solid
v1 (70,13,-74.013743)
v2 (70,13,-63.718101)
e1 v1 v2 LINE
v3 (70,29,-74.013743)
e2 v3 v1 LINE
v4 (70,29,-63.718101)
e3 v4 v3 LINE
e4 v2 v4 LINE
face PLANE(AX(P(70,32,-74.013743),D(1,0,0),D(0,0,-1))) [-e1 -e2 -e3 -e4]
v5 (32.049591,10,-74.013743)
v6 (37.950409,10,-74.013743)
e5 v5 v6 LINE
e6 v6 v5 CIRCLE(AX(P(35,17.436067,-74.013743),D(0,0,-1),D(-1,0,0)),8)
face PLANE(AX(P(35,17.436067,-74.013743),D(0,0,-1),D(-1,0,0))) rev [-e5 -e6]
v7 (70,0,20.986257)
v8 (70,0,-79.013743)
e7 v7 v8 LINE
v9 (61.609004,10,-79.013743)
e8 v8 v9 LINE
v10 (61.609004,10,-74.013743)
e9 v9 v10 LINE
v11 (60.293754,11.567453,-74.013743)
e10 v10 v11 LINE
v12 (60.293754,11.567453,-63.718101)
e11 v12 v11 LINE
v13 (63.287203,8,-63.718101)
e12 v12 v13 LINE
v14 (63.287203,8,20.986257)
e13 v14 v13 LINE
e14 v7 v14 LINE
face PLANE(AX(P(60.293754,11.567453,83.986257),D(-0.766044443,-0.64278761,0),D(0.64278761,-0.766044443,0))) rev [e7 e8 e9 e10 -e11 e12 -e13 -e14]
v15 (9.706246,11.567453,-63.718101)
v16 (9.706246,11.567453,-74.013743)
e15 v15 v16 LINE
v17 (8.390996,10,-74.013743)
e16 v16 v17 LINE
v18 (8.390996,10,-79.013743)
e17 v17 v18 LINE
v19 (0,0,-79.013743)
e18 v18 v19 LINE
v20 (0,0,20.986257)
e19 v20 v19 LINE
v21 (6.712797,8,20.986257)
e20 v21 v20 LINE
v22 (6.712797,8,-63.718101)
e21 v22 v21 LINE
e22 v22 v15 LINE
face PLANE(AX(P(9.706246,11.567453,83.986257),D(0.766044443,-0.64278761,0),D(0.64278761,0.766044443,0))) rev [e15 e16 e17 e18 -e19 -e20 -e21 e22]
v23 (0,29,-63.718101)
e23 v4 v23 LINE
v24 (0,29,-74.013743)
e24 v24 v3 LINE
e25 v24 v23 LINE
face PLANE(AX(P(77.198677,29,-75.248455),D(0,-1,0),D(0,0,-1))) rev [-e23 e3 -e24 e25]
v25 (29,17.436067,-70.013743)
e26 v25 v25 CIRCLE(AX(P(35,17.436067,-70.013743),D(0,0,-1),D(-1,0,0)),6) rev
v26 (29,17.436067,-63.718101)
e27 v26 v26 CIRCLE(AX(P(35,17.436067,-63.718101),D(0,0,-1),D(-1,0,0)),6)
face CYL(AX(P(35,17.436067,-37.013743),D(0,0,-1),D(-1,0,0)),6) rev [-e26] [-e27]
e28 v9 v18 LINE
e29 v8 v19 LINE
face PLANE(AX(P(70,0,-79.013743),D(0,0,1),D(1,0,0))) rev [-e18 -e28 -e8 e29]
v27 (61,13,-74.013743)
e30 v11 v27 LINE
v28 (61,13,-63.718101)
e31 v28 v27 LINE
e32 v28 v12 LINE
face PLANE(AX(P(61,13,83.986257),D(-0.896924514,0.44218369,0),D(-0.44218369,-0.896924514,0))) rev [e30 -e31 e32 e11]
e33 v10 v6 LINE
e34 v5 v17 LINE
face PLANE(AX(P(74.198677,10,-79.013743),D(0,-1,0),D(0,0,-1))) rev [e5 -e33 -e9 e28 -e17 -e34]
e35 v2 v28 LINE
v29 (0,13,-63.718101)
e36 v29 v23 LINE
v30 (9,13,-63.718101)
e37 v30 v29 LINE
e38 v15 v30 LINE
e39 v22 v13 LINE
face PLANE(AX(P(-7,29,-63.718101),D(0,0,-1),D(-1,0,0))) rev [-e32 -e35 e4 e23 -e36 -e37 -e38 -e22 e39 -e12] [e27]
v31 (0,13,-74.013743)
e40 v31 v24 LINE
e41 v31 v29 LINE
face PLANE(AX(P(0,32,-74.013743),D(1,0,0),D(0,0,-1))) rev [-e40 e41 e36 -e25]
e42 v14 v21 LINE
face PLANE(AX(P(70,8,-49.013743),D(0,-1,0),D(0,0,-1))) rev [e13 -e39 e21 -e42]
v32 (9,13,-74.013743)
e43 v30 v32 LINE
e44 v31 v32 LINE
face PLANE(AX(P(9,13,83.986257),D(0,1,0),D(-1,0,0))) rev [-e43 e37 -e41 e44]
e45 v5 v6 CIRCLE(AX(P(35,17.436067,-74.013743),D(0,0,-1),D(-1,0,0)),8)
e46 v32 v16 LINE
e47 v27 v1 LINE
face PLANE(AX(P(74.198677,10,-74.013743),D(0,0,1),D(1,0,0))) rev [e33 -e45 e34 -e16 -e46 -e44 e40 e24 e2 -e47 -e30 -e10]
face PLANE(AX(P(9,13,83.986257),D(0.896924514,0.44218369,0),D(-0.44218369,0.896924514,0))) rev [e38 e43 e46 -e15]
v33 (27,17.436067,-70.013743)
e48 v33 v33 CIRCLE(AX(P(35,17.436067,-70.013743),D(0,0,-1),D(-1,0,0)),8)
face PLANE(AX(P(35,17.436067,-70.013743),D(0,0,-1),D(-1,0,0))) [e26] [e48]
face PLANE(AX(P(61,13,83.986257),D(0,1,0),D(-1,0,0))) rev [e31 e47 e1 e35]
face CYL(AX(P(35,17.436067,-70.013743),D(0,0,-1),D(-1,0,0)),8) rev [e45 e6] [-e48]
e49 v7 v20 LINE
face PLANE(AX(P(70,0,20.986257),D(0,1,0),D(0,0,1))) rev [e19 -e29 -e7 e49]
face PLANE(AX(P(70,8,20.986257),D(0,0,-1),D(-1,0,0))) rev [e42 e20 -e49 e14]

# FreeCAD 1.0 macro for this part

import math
import FreeCAD as App
import Part
import Sketcher
Q = App.Units.Quantity


def add_polygon(sketch, points):
    """Adds a closed chain of lines whose ends are joined by coincident constraints."""
    first, n = sketch.GeometryCount, len(points)
    for a, b in zip(points, points[1:] + points[:1]):
        sketch.addGeometry(Part.LineSegment(App.Vector(*a, 0), App.Vector(*b, 0)), False)
    for i in range(n):
        sketch.addConstraint(Sketcher.Constraint("Coincident", first + i, 2, first + (i + 1) % n, 1))

doc = App.newDocument("Part")
body = doc.addObject("PartDesign::Body", "Body")

sketch1 = body.newObject("Sketcher::SketchObject", "Sketch")
sketch1.AttachmentSupport = (doc.getObject("YZ_Plane"), [""])
sketch1.MapMode = "FlatFace"
sketch1.addGeometry([
    Part.LineSegment(App.Vector(0, 20.986257, 0), App.Vector(0, -79.013743, 0)),
    Part.LineSegment(App.Vector(0, -79.013743, 0), App.Vector(32, -79.013743, 0)),
    Part.ArcOfCircle(Part.Circle(App.Vector(32, -74.013743, 0), App.Vector(0, 0, 1), 5), math.radians(-90), math.radians(0)),
    Part.LineSegment(App.Vector(37, -74.013743, 0), App.Vector(37, -71.922597, 0)),
    Part.ArcOfCircle(Part.Circle(App.Vector(32, -71.922597, 0), App.Vector(0, 0, 1), 5), math.radians(0), math.radians(55)),
    Part.LineSegment(App.Vector(34.867882, -67.826836, 0), App.Vector(8, -49.013743, 0)),
    Part.LineSegment(App.Vector(8, -49.013743, 0), App.Vector(8, 20.986257, 0)),
    Part.LineSegment(App.Vector(8, 20.986257, 0), App.Vector(0, 20.986257, 0)),
], False)
sketch1.addConstraint([
    Sketcher.Constraint("Coincident", 0, 2, 1, 1),
    Sketcher.Constraint("Tangent", 1, 2, 2, 1),
    Sketcher.Constraint("Tangent", 2, 2, 3, 1),
    Sketcher.Constraint("Tangent", 3, 2, 4, 1),
    Sketcher.Constraint("Tangent", 4, 2, 5, 1),
    Sketcher.Constraint("Coincident", 5, 2, 6, 1),
    Sketcher.Constraint("Coincident", 6, 2, 7, 1),
    Sketcher.Constraint("Coincident", 7, 2, 0, 1),
    Sketcher.Constraint("Vertical", 0),
    Sketcher.Constraint("Horizontal", 1),
    Sketcher.Constraint("Vertical", 3),
    Sketcher.Constraint("Vertical", 6),
    Sketcher.Constraint("Horizontal", 7),
    Sketcher.Constraint("Equal", 2, 4),
    Sketcher.Constraint("PointOnObject", 0, 2, -2),
    Sketcher.Constraint("Radius", 2, Q("5 mm")),
    Sketcher.Constraint("DistanceX", 1, 1, 1, 2, Q("32 mm")),
    Sketcher.Constraint("DistanceX", 7, 2, 7, 1, Q("8 mm")),
    Sketcher.Constraint("DistanceY", 0, 2, 0, 1, Q("100 mm")),
    Sketcher.Constraint("DistanceY", 6, 1, 6, 2, Q("70 mm")),
    Sketcher.Constraint("Angle", 5, Q("145 deg")),
    Sketcher.Constraint("DistanceY", 2, 3, -1, 1, Q("74.013743 mm")),
])
pad1 = body.newObject("PartDesign::Pad", "Pad")
pad1.Profile = sketch1
pad1.Length = 70

sketch2 = body.newObject("Sketcher::SketchObject", "Sketch001")
sketch2.AttachmentSupport = (doc.getObject("XY_Plane"), [""])
sketch2.MapMode = "FlatFace"
sketch2.AttachmentOffset = App.Placement(App.Vector(0, 0, -79.013743), App.Rotation())
add_polygon(sketch2, [(61, 13), (70, 13), (70, 0), (60.293754, 11.567453)])
add_polygon(sketch2, [(9, 13), (9.706246, 11.567453), (0, 0), (0, 13)])
sketch2.addConstraint([
    Sketcher.Constraint("Horizontal", 0),
    Sketcher.Constraint("Vertical", 1),
    Sketcher.Constraint("Vertical", 6),
    Sketcher.Constraint("Horizontal", 7),
    Sketcher.Constraint("Coincident", 5, 2, -1, 1),
    Sketcher.Constraint("PointOnObject", 1, 2, -1),
    Sketcher.Constraint("Horizontal", 2, 2, 4, 2),
    Sketcher.Constraint("Horizontal", 3, 2, 6, 2),
    Sketcher.Constraint("Equal", 0, 7),
    Sketcher.Constraint("Equal", 3, 4),
    Sketcher.Constraint("DistanceX", 0, 1, 0, 2, Q("9 mm")),
    Sketcher.Constraint("DistanceY", 1, 2, 1, 1, Q("13 mm")),
    Sketcher.Constraint("Angle", 2, Q("130 deg")),
    Sketcher.Constraint("DistanceX", -1, 1, 0, 2, Q("70 mm")),
    Sketcher.Constraint("DistanceX", 4, 2, 2, 2, Q("50.587509 mm")),
])
pocket1 = body.newObject("PartDesign::Pocket", "Pocket")
pocket1.Profile = sketch2
pocket1.Length = 163
pocket1.Reversed = True

sketch3 = body.newObject("Sketcher::SketchObject", "Sketch002")
sketch3.AttachmentSupport = (doc.getObject("YZ_Plane"), [""])
sketch3.MapMode = "FlatFace"
add_polygon(sketch3, [(38.984249, -79.013743), (10, -79.013743), (10, -74.013743), (38.984249, -74.013743)])
sketch3.addConstraint([
    Sketcher.Constraint("Horizontal", 0),
    Sketcher.Constraint("Vertical", 1),
    Sketcher.Constraint("Horizontal", 2),
    Sketcher.Constraint("Vertical", 3),
    Sketcher.Constraint("DistanceY", 1, 1, 1, 2, Q("5 mm")),
    Sketcher.Constraint("DistanceX", -1, 1, 0, 2, Q("10 mm")),
    Sketcher.Constraint("DistanceX", 0, 2, 0, 1, Q("28.984249 mm")),
    Sketcher.Constraint("DistanceY", 0, 2, -1, 1, Q("79.013743 mm")),
])
pocket2 = body.newObject("PartDesign::Pocket", "Pocket001")
pocket2.Profile = sketch3
pocket2.Length = 74.198677
pocket2.Reversed = True

sketch4 = body.newObject("Sketcher::SketchObject", "Sketch003")
sketch4.AttachmentSupport = (doc.getObject("YZ_Plane"), [""])
sketch4.MapMode = "FlatFace"
add_polygon(sketch4, [(39.192967, -75.248455), (29, -75.248455), (29, -54.989142), (39.192967, -54.989142)])
sketch4.addConstraint([
    Sketcher.Constraint("Horizontal", 0),
    Sketcher.Constraint("Vertical", 1),
    Sketcher.Constraint("Horizontal", 2),
    Sketcher.Constraint("Vertical", 3),
    Sketcher.Constraint("DistanceX", -1, 1, 0, 2, Q("29 mm")),
    Sketcher.Constraint("DistanceX", 0, 2, 0, 1, Q("10.192967 mm")),
    Sketcher.Constraint("DistanceY", 1, 1, 1, 2, Q("20.259313 mm")),
    Sketcher.Constraint("DistanceY", 1, 2, -1, 1, Q("54.989142 mm")),
])
pocket3 = body.newObject("PartDesign::Pocket", "Pocket002")
pocket3.Profile = sketch4
pocket3.Length = 77.198677
pocket3.Reversed = True

sketch5 = body.newObject("Sketcher::SketchObject", "Sketch004")
sketch5.AttachmentSupport = (doc.getObject("YZ_Plane"), [""])
sketch5.MapMode = "FlatFace"
sketch5.AttachmentOffset = App.Placement(App.Vector(0, 0, 70), App.Rotation())
add_polygon(sketch5, [(29, -41.139446), (8, -41.139446), (8, -63.718101), (29, -63.718101)])
sketch5.addConstraint([
    Sketcher.Constraint("Horizontal", 0),
    Sketcher.Constraint("Vertical", 1),
    Sketcher.Constraint("Horizontal", 2),
    Sketcher.Constraint("Vertical", 3),
    Sketcher.Constraint("DistanceX", 0, 2, 0, 1, Q("21 mm")),
    Sketcher.Constraint("DistanceX", -1, 1, 0, 2, Q("8 mm")),
    Sketcher.Constraint("DistanceY", 1, 2, -1, 1, Q("63.718101 mm")),
    Sketcher.Constraint("DistanceY", 1, 2, 1, 1, Q("22.578655 mm")),
])
pocket4 = body.newObject("PartDesign::Pocket", "Pocket003")
pocket4.Profile = sketch5
pocket4.Length = 77

sketch6 = body.newObject("Sketcher::SketchObject", "Sketch005")
sketch6.AttachmentSupport = (doc.getObject("XY_Plane"), [""])
sketch6.MapMode = "FlatFace"
sketch6.AttachmentOffset = App.Placement(App.Vector(0, 0, -74.013743), App.Rotation())
sketch6.addGeometry(Part.Circle(App.Vector(35, 17.436067, 0), App.Vector(0, 0, 1), 6), False)
sketch6.addConstraint([
    Sketcher.Constraint("Diameter", 0, Q("12 mm")),
    Sketcher.Constraint("DistanceX", -1, 1, 0, 3, Q("35 mm")),
    Sketcher.Constraint("DistanceY", -1, 1, 0, 3, Q("17.436067 mm")),
])
pocket5 = body.newObject("PartDesign::Pocket", "Pocket004")
pocket5.Profile = sketch6
pocket5.Length = 37
pocket5.Reversed = True

sketch7 = body.newObject("Sketcher::SketchObject", "Sketch006")
sketch7.AttachmentSupport = (doc.getObject("XY_Plane"), [""])
sketch7.MapMode = "FlatFace"
sketch7.AttachmentOffset = App.Placement(App.Vector(0, 0, -74.013743), App.Rotation())
sketch7.addGeometry(Part.Circle(App.Vector(35, 17.436067, 0), App.Vector(0, 0, 1), 8), False)
sketch7.addConstraint([
    Sketcher.Constraint("Diameter", 0, Q("16 mm")),
    Sketcher.Constraint("DistanceX", -1, 1, 0, 3, Q("35 mm")),
    Sketcher.Constraint("DistanceY", -1, 1, 0, 3, Q("17.436067 mm")),
])
pocket6 = body.newObject("PartDesign::Pocket", "Pocket005")
pocket6.Profile = sketch7
pocket6.Length = 4
pocket6.Reversed = True

doc.recompute()
